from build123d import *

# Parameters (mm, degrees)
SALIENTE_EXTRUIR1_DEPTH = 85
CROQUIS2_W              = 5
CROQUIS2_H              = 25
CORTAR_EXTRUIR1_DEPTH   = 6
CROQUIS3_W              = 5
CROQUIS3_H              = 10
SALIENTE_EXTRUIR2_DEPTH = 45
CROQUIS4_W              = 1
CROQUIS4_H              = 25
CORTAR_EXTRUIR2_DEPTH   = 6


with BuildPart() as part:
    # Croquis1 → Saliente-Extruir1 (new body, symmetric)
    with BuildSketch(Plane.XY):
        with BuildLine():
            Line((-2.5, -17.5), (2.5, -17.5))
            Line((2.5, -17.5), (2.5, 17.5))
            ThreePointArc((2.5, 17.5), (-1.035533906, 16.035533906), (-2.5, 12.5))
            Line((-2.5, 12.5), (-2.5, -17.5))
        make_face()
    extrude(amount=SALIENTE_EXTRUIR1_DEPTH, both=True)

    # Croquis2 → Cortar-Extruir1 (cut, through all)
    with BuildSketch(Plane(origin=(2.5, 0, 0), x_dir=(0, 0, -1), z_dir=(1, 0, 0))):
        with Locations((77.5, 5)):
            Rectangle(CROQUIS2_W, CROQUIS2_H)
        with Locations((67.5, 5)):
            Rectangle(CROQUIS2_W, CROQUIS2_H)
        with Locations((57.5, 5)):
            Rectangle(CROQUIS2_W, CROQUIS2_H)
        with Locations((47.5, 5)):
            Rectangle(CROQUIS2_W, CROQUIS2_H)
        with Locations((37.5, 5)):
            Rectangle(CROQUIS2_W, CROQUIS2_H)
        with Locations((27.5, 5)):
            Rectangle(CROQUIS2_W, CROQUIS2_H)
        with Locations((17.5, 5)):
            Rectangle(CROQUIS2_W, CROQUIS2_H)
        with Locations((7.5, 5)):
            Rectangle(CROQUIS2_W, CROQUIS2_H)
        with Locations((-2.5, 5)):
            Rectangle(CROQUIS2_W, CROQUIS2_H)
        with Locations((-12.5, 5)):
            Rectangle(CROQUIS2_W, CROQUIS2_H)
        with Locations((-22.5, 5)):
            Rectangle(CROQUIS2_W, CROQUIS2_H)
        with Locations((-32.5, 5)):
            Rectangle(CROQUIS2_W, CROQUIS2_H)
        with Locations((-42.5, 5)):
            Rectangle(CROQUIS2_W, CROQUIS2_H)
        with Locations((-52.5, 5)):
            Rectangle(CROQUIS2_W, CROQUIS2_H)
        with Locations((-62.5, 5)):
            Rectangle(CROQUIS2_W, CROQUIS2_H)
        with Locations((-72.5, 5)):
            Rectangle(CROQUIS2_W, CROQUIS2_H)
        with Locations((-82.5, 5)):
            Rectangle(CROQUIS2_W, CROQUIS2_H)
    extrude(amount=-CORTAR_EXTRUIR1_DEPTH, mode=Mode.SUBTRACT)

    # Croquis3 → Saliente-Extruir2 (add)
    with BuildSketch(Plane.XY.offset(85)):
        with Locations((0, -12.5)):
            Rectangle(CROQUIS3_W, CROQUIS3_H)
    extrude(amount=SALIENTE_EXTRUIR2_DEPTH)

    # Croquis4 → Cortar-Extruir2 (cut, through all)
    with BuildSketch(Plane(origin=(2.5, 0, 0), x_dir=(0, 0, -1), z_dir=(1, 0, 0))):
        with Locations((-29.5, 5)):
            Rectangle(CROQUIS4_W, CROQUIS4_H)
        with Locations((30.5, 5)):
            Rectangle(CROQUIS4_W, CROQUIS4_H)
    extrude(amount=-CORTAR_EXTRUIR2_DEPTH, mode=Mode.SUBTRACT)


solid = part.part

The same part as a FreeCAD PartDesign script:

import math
import FreeCAD as App
import Part
import Sketcher

V = App.Vector


def add_polygon(sketch, points):
    """Adds a closed chain of lines whose ends are joined by coincident constraints."""
    first, n = sketch.GeometryCount, len(points)
    for a, b in zip(points, points[1:] + points[:1]):
        sketch.addGeometry(Part.LineSegment(App.Vector(*a, 0), App.Vector(*b, 0)), False)
    for i in range(n):
        sketch.addConstraint(Sketcher.Constraint("Coincident", first + i, 2, first + (i + 1) % n, 1))

doc = App.newDocument("Part")
body = doc.addObject("PartDesign::Body", "Body")

# Sketch on XY plane
sketch1 = body.newObject("Sketcher::SketchObject", "Sketch")
sketch1.AttachmentSupport = (doc.getObject("XY_Plane"), [""])
sketch1.MapMode = "FlatFace"
sketch1.addGeometry([
    Part.LineSegment(V(-2.5, -17.5, 0), V(2.5, -17.5, 0)),
    Part.LineSegment(V(2.5, -17.5, 0), V(2.5, 17.5, 0)),
    Part.ArcOfCircle(Part.Circle(V(2.5, 12.5, 0), V(0, 0, 1), 5), math.radians(90), math.radians(180)),
    Part.LineSegment(V(-2.5, 12.5, 0), V(-2.5, -17.5, 0)),
], False)
sketch1.addConstraint([
    Sketcher.Constraint("Coincident", 0, 2, 1, 1),
    Sketcher.Constraint("Coincident", 1, 2, 2, 1),
    Sketcher.Constraint("Tangent", 2, 2, 3, 1),
    Sketcher.Constraint("Coincident", 3, 2, 0, 1),
    Sketcher.Constraint("Horizontal", 0),
    Sketcher.Constraint("Vertical", 1),
    Sketcher.Constraint("Vertical", 3),
    Sketcher.Constraint("Symmetric", 1, 2, 3, 2, -1, 1),
    Sketcher.Constraint("Vertical", 2, 3, 0, 2),
    Sketcher.Constraint("Radius", 2, 5.0),
    Sketcher.Constraint("DistanceY", 1, 1, 1, 2, 35.0),
])
pad1 = body.newObject("PartDesign::Pad", "Pad")
pad1.Profile = sketch1
pad1.Length = 170
pad1.Midplane = True

# Sketch on YZ plane
sketch2 = body.newObject("Sketcher::SketchObject", "Sketch001")
sketch2.AttachmentSupport = (doc.getObject("YZ_Plane"), [""])
sketch2.MapMode = "FlatFace"
sketch2.AttachmentOffset = App.Placement(V(0, 0, 2.5), App.Rotation())
add_polygon(sketch2, [(17.5, -75), (-7.5, -75), (-7.5, -80), (17.5, -80)])  # lines 0-3
add_polygon(sketch2, [(17.5, -65), (-7.5, -65), (-7.5, -70), (17.5, -70)])  # lines 4-7
add_polygon(sketch2, [(17.5, -55), (-7.5, -55), (-7.5, -60), (17.5, -60)])  # lines 8-11
add_polygon(sketch2, [(17.5, -45), (-7.5, -45), (-7.5, -50), (17.5, -50)])  # lines 12-15
add_polygon(sketch2, [(17.5, -35), (-7.5, -35), (-7.5, -40), (17.5, -40)])  # lines 16-19
add_polygon(sketch2, [(17.5, -25), (-7.5, -25), (-7.5, -30), (17.5, -30)])  # lines 20-23
add_polygon(sketch2, [(17.5, -15), (-7.5, -15), (-7.5, -20), (17.5, -20)])  # lines 24-27
add_polygon(sketch2, [(17.5, -5), (-7.5, -5), (-7.5, -10), (17.5, -10)])  # lines 28-31
add_polygon(sketch2, [(17.5, 5), (-7.5, 5), (-7.5, 0), (17.5, 0)])  # lines 32-35
add_polygon(sketch2, [(17.5, 15), (-7.5, 15), (-7.5, 10), (17.5, 10)])  # lines 36-39
add_polygon(sketch2, [(17.5, 25), (-7.5, 25), (-7.5, 20), (17.5, 20)])  # lines 40-43
add_polygon(sketch2, [(17.5, 35), (-7.5, 35), (-7.5, 30), (17.5, 30)])  # lines 44-47
add_polygon(sketch2, [(17.5, 45), (-7.5, 45), (-7.5, 40), (17.5, 40)])  # lines 48-51
add_polygon(sketch2, [(17.5, 55), (-7.5, 55), (-7.5, 50), (17.5, 50)])  # lines 52-55
add_polygon(sketch2, [(17.5, 65), (-7.5, 65), (-7.5, 60), (17.5, 60)])  # lines 56-59
add_polygon(sketch2, [(17.5, 75), (-7.5, 75), (-7.5, 70), (17.5, 70)])  # lines 60-63
add_polygon(sketch2, [(17.5, 85), (-7.5, 85), (-7.5, 80), (17.5, 80)])  # lines 64-67
sketch2.addConstraint([
    Sketcher.Constraint("Horizontal", 0),
    Sketcher.Constraint("Vertical", 1),
    Sketcher.Constraint("Horizontal", 2),
    Sketcher.Constraint("Vertical", 3),
    Sketcher.Constraint("Horizontal", 4),
    Sketcher.Constraint("Vertical", 5),
    Sketcher.Constraint("Horizontal", 6),
    Sketcher.Constraint("Vertical", 7),
    Sketcher.Constraint("Horizontal", 8),
    Sketcher.Constraint("Vertical", 9),
    Sketcher.Constraint("Horizontal", 10),
    Sketcher.Constraint("Vertical", 11),
    Sketcher.Constraint("Horizontal", 12),
    Sketcher.Constraint("Vertical", 13),
    Sketcher.Constraint("Horizontal", 14),
    Sketcher.Constraint("Vertical", 15),
    Sketcher.Constraint("Horizontal", 16),
    Sketcher.Constraint("Vertical", 17),
    Sketcher.Constraint("Horizontal", 18),
    Sketcher.Constraint("Vertical", 19),
    Sketcher.Constraint("Horizontal", 20),
    Sketcher.Constraint("Vertical", 21),
    Sketcher.Constraint("Horizontal", 22),
    Sketcher.Constraint("Vertical", 23),
    Sketcher.Constraint("Horizontal", 24),
    Sketcher.Constraint("Vertical", 25),
    Sketcher.Constraint("Horizontal", 26),
    Sketcher.Constraint("Vertical", 27),
    Sketcher.Constraint("Horizontal", 28),
    Sketcher.Constraint("Vertical", 29),
    Sketcher.Constraint("Horizontal", 30),
    Sketcher.Constraint("Vertical", 31),
    Sketcher.Constraint("Horizontal", 32),
    Sketcher.Constraint("Vertical", 33),
    Sketcher.Constraint("Horizontal", 34),
    Sketcher.Constraint("Vertical", 35),
    Sketcher.Constraint("Horizontal", 36),
    Sketcher.Constraint("Vertical", 37),
    Sketcher.Constraint("Horizontal", 38),
    Sketcher.Constraint("Vertical", 39),
    Sketcher.Constraint("Horizontal", 40),
    Sketcher.Constraint("Vertical", 41),
    Sketcher.Constraint("Horizontal", 42),
    Sketcher.Constraint("Vertical", 43),
    Sketcher.Constraint("Horizontal", 44),
    Sketcher.Constraint("Vertical", 45),
    Sketcher.Constraint("Horizontal", 46),
    Sketcher.Constraint("Vertical", 47),
    Sketcher.Constraint("Horizontal", 48),
    Sketcher.Constraint("Vertical", 49),
    Sketcher.Constraint("Horizontal", 50),
    Sketcher.Constraint("Vertical", 51),
    Sketcher.Constraint("Horizontal", 52),
    Sketcher.Constraint("Vertical", 53),
    Sketcher.Constraint("Horizontal", 54),
    Sketcher.Constraint("Vertical", 55),
    Sketcher.Constraint("Horizontal", 56),
    Sketcher.Constraint("Vertical", 57),
    Sketcher.Constraint("Horizontal", 58),
    Sketcher.Constraint("Vertical", 59),
    Sketcher.Constraint("Horizontal", 60),
    Sketcher.Constraint("Vertical", 61),
    Sketcher.Constraint("Horizontal", 62),
    Sketcher.Constraint("Vertical", 63),
    Sketcher.Constraint("Horizontal", 64),
    Sketcher.Constraint("Vertical", 65),
    Sketcher.Constraint("Horizontal", 66),
    Sketcher.Constraint("Vertical", 67),
    Sketcher.Constraint("Symmetric", 28, 2, 32, 2, -1),
    Sketcher.Constraint("Symmetric", 24, 2, 36, 2, -1),
    Sketcher.Constraint("Symmetric", 29, 2, 37, 2, -1),
    Sketcher.Constraint("Symmetric", 20, 2, 40, 2, -1),
    Sketcher.Constraint("Symmetric", 25, 2, 41, 2, -1),
    Sketcher.Constraint("Symmetric", 16, 2, 44, 2, -1),
    Sketcher.Constraint("Symmetric", 21, 2, 45, 2, -1),
    Sketcher.Constraint("Symmetric", 12, 2, 48, 2, -1),
    Sketcher.Constraint("Symmetric", 17, 2, 49, 2, -1),
    Sketcher.Constraint("Symmetric", 8, 2, 52, 2, -1),
    Sketcher.Constraint("Symmetric", 13, 2, 53, 2, -1),
    Sketcher.Constraint("Symmetric", 4, 2, 56, 2, -1),
    Sketcher.Constraint("Symmetric", 9, 2, 57, 2, -1),
    Sketcher.Constraint("Symmetric", 0, 2, 60, 2, -1),
    Sketcher.Constraint("Symmetric", 5, 2, 61, 2, -1),
    Sketcher.Constraint("Symmetric", 1, 2, 65, 2, -1),
    Sketcher.Constraint("PointOnObject", 33, 2, -1),
    Sketcher.Constraint("Vertical", 3, 2, 6, 2),
    Sketcher.Constraint("Vertical", 7, 2, 10, 2),
    Sketcher.Constraint("Vertical", 11, 2, 14, 2),
    Sketcher.Constraint("Vertical", 15, 2, 18, 2),
    Sketcher.Constraint("Vertical", 19, 2, 22, 2),
    Sketcher.Constraint("Vertical", 23, 2, 26, 2),
    Sketcher.Constraint("Vertical", 27, 2, 30, 2),
    Sketcher.Constraint("Vertical", 31, 2, 34, 2),
    Sketcher.Constraint("Vertical", 35, 2, 38, 2),
    Sketcher.Constraint("Vertical", 39, 2, 42, 2),
    Sketcher.Constraint("Vertical", 43, 2, 46, 2),
    Sketcher.Constraint("Vertical", 47, 2, 50, 2),
    Sketcher.Constraint("Vertical", 51, 2, 54, 2),
    Sketcher.Constraint("Vertical", 55, 2, 58, 2),
    Sketcher.Constraint("Vertical", 59, 2, 62, 2),
    Sketcher.Constraint("Vertical", 63, 2, 66, 2),
    Sketcher.Constraint("Equal", 3, 5),
    Sketcher.Constraint("Equal", 7, 9),
    Sketcher.Constraint("Equal", 11, 13),
    Sketcher.Constraint("Equal", 15, 17),
    Sketcher.Constraint("Equal", 19, 21),
    Sketcher.Constraint("Equal", 23, 25),
    Sketcher.Constraint("Equal", 27, 29),
    Sketcher.Constraint("Equal", 31, 33),
    Sketcher.Constraint("Equal", 35, 37),
    Sketcher.Constraint("Equal", 39, 41),
    Sketcher.Constraint("Equal", 43, 45),
    Sketcher.Constraint("Equal", 47, 49),
    Sketcher.Constraint("Equal", 51, 53),
    Sketcher.Constraint("Equal", 55, 57),
    Sketcher.Constraint("Equal", 59, 61),
    Sketcher.Constraint("Equal", 63, 65),
    Sketcher.Constraint("DistanceX", 0, 2, 0, 1, 25.0),
    Sketcher.Constraint("DistanceY", 1, 2, 1, 1, 5.0),
    Sketcher.Constraint("DistanceX", 0, 2, -1, 1, 7.5),
])
pocket1 = body.newObject("PartDesign::Pocket", "Pocket")
pocket1.Profile = sketch2
pocket1.Type = "ThroughAll"

# Sketch on XY plane
sketch3 = body.newObject("Sketcher::SketchObject", "Sketch002")
sketch3.AttachmentSupport = (doc.getObject("XY_Plane"), [""])
sketch3.MapMode = "FlatFace"
sketch3.AttachmentOffset = App.Placement(V(0, 0, 85), App.Rotation())
add_polygon(sketch3, [(-2.5, -7.5), (-2.5, -17.5), (2.5, -17.5), (2.5, -7.5)])  # lines 0-3
sketch3.addConstraint([
    Sketcher.Constraint("Vertical", 0),
    Sketcher.Constraint("Horizontal", 1),
    Sketcher.Constraint("Vertical", 2),
    Sketcher.Constraint("Horizontal", 3),
    Sketcher.Constraint("DistanceX", 1, 1, 1, 2, 5.0),
    Sketcher.Constraint("DistanceY", 0, 2, 0, 1, 10.0),
    Sketcher.Constraint("DistanceX", 0, 2, -1, 1, 2.5),
    Sketcher.Constraint("DistanceY", 0, 2, -1, 1, 17.5),
])
pad2 = body.newObject("PartDesign::Pad", "Pad001")
pad2.Profile = sketch3
pad2.Length = 45

# Sketch on YZ plane
sketch4 = body.newObject("Sketcher::SketchObject", "Sketch003")
sketch4.AttachmentSupport = (doc.getObject("YZ_Plane"), [""])
sketch4.MapMode = "FlatFace"
sketch4.AttachmentOffset = App.Placement(V(0, 0, 2.5), App.Rotation())
add_polygon(sketch4, [(17.5, 30), (-7.5, 30), (-7.5, 29), (17.5, 29)])  # lines 0-3
add_polygon(sketch4, [(17.5, -30), (-7.5, -30), (-7.5, -31), (17.5, -31)])  # lines 4-7
sketch4.addConstraint([
    Sketcher.Constraint("Horizontal", 0),
    Sketcher.Constraint("Vertical", 1),
    Sketcher.Constraint("Horizontal", 2),
    Sketcher.Constraint("Vertical", 3),
    Sketcher.Constraint("Horizontal", 4),
    Sketcher.Constraint("Vertical", 5),
    Sketcher.Constraint("Horizontal", 6),
    Sketcher.Constraint("Vertical", 7),
    Sketcher.Constraint("Symmetric", 0, 2, 4, 2, -1),
    Sketcher.Constraint("Vertical", 3, 2, 6, 2),
    Sketcher.Constraint("Equal", 3, 5),
    Sketcher.Constraint("DistanceX", 0, 2, 0, 1, 25.0),
    Sketcher.Constraint("DistanceY", 1, 2, 1, 1, 1.0),
    Sketcher.Constraint("DistanceY", -1, 1, 0, 2, 30.0),
    Sketcher.Constraint("DistanceX", 0, 2, -1, 1, 7.5),
])
pocket2 = body.newObject("PartDesign::Pocket", "Pocket001")
pocket2.Profile = sketch4
pocket2.Type = "ThroughAll"

doc.recompute()
